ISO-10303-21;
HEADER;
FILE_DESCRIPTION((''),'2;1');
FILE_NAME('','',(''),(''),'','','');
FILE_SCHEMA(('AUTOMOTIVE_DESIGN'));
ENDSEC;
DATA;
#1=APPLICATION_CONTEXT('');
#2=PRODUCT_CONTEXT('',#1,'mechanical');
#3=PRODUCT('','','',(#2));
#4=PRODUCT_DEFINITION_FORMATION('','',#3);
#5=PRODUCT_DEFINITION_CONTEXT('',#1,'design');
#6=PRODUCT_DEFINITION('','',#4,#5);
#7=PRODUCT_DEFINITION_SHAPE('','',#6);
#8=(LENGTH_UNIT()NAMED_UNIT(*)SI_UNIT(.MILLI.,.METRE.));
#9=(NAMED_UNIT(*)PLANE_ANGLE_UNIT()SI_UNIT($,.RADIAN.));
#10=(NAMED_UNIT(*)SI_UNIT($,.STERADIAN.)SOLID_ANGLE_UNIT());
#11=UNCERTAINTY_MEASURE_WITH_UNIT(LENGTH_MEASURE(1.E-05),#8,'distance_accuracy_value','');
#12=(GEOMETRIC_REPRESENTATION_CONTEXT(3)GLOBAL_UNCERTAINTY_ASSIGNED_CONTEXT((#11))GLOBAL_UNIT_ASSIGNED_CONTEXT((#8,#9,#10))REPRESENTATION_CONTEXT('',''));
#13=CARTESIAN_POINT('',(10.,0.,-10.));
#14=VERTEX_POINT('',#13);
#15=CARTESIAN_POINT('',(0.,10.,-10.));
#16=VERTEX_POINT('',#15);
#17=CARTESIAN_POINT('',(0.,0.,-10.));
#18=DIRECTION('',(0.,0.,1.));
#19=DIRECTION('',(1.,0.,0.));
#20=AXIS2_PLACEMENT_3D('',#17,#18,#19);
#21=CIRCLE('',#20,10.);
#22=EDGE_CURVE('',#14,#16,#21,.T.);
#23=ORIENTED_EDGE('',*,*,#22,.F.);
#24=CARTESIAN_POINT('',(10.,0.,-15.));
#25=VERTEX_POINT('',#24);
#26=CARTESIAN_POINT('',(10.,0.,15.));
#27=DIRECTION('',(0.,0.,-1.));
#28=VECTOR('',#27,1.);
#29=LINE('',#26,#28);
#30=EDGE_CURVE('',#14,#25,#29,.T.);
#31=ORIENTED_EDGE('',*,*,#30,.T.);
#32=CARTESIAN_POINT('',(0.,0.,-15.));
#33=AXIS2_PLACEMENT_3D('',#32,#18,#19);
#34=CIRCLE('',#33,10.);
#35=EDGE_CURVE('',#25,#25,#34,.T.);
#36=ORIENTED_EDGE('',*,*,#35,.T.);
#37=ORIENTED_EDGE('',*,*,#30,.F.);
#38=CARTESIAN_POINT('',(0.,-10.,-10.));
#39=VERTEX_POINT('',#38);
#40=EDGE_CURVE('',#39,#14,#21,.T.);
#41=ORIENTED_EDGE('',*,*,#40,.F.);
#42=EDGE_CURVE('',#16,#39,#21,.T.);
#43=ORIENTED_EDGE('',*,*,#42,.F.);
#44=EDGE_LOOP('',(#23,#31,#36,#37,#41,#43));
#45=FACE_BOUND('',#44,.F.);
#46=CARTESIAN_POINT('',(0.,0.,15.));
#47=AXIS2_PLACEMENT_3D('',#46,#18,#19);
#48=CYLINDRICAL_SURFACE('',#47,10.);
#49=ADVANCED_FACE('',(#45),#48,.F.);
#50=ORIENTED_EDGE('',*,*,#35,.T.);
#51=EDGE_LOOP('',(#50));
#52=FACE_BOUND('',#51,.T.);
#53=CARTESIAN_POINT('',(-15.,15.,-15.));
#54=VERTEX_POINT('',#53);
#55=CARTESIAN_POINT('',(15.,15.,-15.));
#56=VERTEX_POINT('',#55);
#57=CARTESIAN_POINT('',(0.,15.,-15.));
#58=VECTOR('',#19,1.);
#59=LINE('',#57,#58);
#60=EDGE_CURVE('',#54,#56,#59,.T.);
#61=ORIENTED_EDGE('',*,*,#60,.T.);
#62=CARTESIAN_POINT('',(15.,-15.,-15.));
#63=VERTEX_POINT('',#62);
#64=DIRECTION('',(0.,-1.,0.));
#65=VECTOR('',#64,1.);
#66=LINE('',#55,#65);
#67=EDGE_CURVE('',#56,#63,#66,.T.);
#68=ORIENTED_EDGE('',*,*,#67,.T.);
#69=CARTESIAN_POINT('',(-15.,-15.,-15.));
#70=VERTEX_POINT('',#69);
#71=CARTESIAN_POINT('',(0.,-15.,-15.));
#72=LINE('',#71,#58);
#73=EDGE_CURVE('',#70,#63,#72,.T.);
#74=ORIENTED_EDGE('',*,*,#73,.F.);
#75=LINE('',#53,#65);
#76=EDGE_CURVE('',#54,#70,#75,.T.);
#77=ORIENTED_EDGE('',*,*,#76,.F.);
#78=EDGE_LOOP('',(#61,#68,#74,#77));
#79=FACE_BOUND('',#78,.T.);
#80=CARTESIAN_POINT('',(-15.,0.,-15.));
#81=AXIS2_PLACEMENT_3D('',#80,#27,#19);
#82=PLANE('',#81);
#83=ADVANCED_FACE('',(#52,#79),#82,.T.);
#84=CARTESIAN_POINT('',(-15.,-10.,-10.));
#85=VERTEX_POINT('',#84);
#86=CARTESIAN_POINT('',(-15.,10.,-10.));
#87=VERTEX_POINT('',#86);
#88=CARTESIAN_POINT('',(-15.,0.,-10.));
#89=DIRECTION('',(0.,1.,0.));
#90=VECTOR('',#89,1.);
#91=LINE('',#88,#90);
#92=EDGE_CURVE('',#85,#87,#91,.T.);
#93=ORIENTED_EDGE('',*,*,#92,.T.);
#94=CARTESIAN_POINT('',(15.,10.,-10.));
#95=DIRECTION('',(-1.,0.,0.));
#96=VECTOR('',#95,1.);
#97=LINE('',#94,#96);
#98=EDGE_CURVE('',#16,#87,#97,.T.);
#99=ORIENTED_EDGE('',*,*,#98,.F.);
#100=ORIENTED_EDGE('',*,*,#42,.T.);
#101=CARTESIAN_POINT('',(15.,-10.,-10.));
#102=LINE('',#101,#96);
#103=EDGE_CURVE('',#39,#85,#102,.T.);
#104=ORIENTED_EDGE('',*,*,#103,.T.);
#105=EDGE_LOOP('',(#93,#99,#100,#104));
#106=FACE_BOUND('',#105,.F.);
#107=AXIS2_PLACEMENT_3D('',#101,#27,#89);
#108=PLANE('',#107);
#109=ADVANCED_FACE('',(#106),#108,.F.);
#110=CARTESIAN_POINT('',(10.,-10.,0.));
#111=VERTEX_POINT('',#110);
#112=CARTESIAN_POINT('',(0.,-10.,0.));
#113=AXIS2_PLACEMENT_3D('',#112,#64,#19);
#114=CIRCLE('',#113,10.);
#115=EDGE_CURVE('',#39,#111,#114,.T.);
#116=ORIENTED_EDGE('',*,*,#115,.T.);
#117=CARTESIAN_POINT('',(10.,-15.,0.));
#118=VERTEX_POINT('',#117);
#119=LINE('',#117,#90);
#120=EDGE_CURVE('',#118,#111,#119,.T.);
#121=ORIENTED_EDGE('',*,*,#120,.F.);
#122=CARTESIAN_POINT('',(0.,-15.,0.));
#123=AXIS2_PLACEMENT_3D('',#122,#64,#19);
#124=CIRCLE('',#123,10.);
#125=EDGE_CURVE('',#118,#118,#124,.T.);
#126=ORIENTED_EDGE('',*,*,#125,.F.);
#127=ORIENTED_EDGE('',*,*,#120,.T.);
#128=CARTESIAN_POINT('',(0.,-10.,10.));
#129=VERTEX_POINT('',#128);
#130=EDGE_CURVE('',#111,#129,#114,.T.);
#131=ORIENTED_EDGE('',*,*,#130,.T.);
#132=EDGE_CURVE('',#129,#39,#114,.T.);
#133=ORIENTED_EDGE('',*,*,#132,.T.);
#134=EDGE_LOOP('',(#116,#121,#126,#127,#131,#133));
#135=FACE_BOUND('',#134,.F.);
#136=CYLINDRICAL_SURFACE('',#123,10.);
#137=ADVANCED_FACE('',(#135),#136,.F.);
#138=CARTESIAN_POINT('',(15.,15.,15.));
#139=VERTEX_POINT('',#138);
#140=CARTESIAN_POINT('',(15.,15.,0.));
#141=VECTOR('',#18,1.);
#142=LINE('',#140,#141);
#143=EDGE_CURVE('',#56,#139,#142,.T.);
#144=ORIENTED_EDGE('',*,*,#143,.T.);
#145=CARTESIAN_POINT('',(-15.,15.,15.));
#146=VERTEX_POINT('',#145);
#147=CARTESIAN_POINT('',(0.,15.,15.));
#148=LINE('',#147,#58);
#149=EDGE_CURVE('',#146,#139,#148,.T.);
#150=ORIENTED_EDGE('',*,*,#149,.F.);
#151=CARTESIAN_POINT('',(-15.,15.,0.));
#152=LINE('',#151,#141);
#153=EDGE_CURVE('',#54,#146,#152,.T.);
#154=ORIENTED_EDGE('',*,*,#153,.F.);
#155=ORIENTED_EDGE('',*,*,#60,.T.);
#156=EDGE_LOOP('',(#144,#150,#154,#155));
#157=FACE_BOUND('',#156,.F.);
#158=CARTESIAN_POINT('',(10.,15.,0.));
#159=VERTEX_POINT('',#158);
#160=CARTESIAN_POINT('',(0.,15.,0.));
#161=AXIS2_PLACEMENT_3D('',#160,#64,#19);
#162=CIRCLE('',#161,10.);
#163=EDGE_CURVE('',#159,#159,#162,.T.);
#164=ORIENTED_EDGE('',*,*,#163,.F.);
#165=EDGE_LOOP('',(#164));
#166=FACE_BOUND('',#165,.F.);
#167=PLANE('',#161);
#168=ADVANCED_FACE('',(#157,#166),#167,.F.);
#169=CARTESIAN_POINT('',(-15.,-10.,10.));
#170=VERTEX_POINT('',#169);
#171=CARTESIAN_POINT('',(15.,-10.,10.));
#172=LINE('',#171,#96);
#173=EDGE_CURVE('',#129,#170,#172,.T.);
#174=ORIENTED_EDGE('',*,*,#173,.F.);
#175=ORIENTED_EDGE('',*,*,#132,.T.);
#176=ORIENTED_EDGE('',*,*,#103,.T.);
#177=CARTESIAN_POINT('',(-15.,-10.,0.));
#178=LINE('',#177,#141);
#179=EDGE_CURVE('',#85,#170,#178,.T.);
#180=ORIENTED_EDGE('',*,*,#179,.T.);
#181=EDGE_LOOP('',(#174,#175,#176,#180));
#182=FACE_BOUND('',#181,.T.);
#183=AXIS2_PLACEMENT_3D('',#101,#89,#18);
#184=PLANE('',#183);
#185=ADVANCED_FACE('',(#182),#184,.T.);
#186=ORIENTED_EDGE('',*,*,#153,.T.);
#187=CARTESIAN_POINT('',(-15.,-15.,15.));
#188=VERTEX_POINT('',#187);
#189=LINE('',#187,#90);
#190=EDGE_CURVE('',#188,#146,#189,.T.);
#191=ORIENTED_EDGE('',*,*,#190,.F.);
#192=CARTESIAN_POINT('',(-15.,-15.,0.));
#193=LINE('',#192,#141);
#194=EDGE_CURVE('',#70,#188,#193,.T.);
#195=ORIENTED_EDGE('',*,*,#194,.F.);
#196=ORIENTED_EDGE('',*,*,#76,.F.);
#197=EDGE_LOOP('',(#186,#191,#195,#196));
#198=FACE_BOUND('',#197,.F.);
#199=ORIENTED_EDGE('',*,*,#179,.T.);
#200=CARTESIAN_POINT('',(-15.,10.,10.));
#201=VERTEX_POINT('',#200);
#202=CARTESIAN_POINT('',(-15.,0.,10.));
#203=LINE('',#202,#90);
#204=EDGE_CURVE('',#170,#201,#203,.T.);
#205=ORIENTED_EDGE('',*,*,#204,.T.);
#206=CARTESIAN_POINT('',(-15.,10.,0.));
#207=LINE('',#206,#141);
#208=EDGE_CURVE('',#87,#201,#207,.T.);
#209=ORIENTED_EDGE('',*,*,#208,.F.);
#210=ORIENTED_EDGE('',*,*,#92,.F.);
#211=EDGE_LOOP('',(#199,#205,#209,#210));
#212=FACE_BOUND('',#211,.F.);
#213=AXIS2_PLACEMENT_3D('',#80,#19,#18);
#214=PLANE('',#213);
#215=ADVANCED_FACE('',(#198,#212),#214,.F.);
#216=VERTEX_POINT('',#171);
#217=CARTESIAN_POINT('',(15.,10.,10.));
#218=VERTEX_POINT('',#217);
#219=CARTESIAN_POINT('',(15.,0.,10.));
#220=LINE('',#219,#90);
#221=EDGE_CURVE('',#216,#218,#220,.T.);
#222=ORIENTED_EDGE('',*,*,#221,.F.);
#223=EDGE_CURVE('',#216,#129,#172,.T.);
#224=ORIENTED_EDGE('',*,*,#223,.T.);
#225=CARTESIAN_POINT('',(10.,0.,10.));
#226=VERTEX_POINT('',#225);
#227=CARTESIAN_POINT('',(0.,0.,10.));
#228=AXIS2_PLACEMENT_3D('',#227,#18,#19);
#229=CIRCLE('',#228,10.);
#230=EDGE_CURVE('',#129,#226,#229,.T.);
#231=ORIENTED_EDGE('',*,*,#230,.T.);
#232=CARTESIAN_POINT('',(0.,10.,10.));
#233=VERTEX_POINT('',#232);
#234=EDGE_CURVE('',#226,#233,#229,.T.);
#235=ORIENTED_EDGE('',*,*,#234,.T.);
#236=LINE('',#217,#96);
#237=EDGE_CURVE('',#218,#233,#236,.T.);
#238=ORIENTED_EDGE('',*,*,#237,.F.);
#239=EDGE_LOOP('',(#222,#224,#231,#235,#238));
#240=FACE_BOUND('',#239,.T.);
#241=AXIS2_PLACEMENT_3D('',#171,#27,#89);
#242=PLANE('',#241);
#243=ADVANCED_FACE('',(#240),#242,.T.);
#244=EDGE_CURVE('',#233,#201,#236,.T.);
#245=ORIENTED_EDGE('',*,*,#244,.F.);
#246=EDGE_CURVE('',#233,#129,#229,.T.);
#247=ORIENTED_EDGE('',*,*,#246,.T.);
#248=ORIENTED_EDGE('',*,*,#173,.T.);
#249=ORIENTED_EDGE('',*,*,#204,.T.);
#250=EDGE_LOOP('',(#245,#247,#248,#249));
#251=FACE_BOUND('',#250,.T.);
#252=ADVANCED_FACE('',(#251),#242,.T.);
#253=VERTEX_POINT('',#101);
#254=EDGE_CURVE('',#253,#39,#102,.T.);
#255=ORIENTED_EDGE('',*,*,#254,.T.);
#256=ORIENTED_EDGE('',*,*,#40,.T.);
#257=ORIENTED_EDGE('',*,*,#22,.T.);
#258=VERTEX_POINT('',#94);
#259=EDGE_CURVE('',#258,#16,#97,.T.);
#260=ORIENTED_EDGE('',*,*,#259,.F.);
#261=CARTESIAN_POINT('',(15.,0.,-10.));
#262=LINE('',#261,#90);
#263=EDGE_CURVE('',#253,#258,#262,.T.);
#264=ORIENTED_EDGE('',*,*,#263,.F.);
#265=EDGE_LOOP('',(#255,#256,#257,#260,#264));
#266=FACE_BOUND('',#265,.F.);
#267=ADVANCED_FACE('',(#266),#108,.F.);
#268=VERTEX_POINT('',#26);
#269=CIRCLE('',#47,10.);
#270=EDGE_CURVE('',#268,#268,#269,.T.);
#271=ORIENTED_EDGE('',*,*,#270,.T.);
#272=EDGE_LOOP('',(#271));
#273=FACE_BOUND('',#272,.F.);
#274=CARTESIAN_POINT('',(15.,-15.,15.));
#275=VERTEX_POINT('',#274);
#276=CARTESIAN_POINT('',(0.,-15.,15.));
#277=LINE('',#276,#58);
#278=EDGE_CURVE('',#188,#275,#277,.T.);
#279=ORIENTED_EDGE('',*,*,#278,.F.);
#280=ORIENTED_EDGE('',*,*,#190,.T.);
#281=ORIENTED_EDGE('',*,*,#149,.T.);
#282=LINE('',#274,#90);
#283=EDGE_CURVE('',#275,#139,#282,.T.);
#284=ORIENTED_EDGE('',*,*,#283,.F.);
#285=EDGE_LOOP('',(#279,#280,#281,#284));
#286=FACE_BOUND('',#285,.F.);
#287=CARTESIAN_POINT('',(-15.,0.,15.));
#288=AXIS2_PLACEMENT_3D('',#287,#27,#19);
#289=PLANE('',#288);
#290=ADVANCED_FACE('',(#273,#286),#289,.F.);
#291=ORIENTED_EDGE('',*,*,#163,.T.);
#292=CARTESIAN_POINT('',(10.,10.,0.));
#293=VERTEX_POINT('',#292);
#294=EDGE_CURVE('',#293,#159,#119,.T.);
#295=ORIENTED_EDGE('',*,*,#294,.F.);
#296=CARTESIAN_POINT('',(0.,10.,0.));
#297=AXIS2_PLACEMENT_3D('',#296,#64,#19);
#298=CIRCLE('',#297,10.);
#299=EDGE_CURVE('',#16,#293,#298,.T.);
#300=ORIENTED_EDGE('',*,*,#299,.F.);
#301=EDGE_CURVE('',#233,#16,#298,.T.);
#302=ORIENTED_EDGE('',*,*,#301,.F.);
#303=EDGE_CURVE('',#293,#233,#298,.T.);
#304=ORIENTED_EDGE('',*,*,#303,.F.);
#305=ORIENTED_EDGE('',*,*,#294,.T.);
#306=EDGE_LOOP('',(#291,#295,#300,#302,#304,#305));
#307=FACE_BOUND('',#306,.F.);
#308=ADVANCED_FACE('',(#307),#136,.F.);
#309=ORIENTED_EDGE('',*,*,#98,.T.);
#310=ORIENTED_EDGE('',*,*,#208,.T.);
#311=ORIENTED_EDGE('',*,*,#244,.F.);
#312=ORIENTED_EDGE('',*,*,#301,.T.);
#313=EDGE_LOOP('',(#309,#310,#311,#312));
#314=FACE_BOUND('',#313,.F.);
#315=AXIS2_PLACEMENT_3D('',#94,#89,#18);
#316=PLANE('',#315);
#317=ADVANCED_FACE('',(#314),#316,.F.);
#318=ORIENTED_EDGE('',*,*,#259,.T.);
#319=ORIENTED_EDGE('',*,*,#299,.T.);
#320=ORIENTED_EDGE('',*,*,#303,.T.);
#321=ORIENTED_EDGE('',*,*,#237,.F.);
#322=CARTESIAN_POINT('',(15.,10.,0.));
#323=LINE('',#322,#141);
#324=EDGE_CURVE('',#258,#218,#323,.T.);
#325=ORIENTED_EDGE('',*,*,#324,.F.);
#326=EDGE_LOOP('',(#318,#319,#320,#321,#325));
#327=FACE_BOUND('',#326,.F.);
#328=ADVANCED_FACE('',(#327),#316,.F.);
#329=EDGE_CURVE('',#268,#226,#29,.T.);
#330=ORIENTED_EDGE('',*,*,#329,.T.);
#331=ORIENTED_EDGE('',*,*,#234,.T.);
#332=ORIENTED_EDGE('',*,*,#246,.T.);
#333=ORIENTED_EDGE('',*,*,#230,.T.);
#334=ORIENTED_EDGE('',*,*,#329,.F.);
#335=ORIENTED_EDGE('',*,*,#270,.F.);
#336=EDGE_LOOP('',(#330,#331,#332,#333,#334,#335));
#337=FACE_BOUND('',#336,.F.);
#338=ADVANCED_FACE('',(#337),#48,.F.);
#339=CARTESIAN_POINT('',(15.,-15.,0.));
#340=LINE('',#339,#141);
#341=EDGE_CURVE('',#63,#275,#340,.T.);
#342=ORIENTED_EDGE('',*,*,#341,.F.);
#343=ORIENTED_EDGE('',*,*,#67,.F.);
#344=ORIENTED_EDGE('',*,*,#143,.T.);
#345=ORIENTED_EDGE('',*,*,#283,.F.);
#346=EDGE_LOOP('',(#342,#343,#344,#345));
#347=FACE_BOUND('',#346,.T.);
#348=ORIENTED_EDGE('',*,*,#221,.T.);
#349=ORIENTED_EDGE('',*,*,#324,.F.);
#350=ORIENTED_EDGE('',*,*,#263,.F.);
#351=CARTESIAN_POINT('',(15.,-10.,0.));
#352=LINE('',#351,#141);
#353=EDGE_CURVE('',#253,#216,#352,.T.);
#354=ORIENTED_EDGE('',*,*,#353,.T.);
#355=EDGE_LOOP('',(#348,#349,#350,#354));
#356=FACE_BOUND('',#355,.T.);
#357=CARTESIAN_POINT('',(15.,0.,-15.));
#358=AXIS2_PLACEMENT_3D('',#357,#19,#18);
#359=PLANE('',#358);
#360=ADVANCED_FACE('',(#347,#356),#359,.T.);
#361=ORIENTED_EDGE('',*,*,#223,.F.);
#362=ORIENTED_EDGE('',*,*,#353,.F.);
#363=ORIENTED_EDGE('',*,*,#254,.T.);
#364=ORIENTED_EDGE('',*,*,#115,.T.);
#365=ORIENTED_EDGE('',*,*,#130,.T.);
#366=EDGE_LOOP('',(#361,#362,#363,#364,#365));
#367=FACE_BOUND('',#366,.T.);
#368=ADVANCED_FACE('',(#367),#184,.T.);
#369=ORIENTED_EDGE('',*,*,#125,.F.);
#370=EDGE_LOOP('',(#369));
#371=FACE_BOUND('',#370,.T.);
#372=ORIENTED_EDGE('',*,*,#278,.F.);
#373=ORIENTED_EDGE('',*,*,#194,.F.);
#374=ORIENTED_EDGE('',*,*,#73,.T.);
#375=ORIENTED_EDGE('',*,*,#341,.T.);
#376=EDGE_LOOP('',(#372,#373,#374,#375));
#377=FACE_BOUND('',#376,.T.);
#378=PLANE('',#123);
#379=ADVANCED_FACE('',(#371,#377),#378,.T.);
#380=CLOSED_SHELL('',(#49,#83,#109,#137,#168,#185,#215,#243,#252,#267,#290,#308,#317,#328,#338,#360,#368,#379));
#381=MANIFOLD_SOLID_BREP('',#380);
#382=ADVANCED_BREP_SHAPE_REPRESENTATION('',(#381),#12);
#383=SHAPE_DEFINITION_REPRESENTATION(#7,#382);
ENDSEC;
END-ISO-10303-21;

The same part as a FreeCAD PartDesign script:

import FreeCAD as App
import Part
import Sketcher
Q = App.Units.Quantity


def add_polygon(sketch, points):
    """Adds a closed chain of lines whose ends are joined by coincident constraints."""
    first, n = sketch.GeometryCount, len(points)
    for a, b in zip(points, points[1:] + points[:1]):
        sketch.addGeometry(Part.LineSegment(App.Vector(*a, 0), App.Vector(*b, 0)), False)
    for i in range(n):
        sketch.addConstraint(Sketcher.Constraint("Coincident", first + i, 2, first + (i + 1) % n, 1))

doc = App.newDocument("Part")
body = doc.addObject("PartDesign::Body", "Body")

sketch1 = body.newObject("Sketcher::SketchObject", "Sketch")
sketch1.AttachmentSupport = (doc.getObject("XZ_Plane"), [""])
sketch1.MapMode = "FlatFace"
add_polygon(sketch1, [(-15, 15), (-15, -15), (15, -15), (15, 15)])
sketch1.addConstraint(Sketcher.Constraint("Vertical", 0))
sketch1.addConstraint(Sketcher.Constraint("Horizontal", 1))
sketch1.addConstraint(Sketcher.Constraint("Vertical", 2))
sketch1.addConstraint(Sketcher.Constraint("Horizontal", 3))
sketch1.addConstraint(Sketcher.Constraint("Symmetric", 0, 2, 2, 2, -1, 1))
sketch1.addConstraint(Sketcher.Constraint("Equal", 3, 0))
sketch1.addConstraint(Sketcher.Constraint("DistanceX", 1, 1, 1, 2, Q("30 mm")))
pad1 = body.newObject("PartDesign::Pad", "Pad")
pad1.Profile = sketch1
pad1.Length = 30
pad1.Midplane = True

sketch2 = body.newObject("Sketcher::SketchObject", "Sketch001")
sketch2.AttachmentSupport = (doc.getObject("XY_Plane"), [""])
sketch2.MapMode = "FlatFace"
sketch2.AttachmentOffset = App.Placement(App.Vector(0, 0, 15), App.Rotation())
sketch2.addGeometry(Part.Circle(App.Vector(0, 0, 0), App.Vector(0, 0, 1), 10), False)
sketch2.addConstraint(Sketcher.Constraint("Coincident", 0, 3, -1, 1))
sketch2.addConstraint(Sketcher.Constraint("Diameter", 0, Q("20 mm")))
pocket1 = body.newObject("PartDesign::Pocket", "Pocket")
pocket1.Profile = sketch2
pocket1.Length = 30

sketch3 = body.newObject("Sketcher::SketchObject", "Sketch002")
sketch3.AttachmentSupport = (doc.getObject("XZ_Plane"), [""])
sketch3.MapMode = "FlatFace"
sketch3.AttachmentOffset = App.Placement(App.Vector(0, 0, 15), App.Rotation())
sketch3.addGeometry(Part.Circle(App.Vector(0, 0, 0), App.Vector(0, 0, 1), 10), False)
sketch3.addConstraint(Sketcher.Constraint("Coincident", 0, 3, -1, 1))
sketch3.addConstraint(Sketcher.Constraint("Diameter", 0, Q("20 mm")))
pocket2 = body.newObject("PartDesign::Pocket", "Pocket001")
pocket2.Profile = sketch3
pocket2.Length = 30

sketch4 = body.newObject("Sketcher::SketchObject", "Sketch003")
sketch4.AttachmentSupport = (doc.getObject("YZ_Plane"), [""])
sketch4.MapMode = "FlatFace"
sketch4.AttachmentOffset = App.Placement(App.Vector(0, 0, 15), App.Rotation())
add_polygon(sketch4, [(-10, 10), (-10, -10), (10, -10), (10, 10)])
sketch4.addConstraint(Sketcher.Constraint("Vertical", 0))
sketch4.addConstraint(Sketcher.Constraint("Horizontal", 1))
sketch4.addConstraint(Sketcher.Constraint("Vertical", 2))
sketch4.addConstraint(Sketcher.Constraint("Horizontal", 3))
sketch4.addConstraint(Sketcher.Constraint("Symmetric", 0, 2, 2, 2, -1, 1))
sketch4.addConstraint(Sketcher.Constraint("Equal", 3, 0))
sketch4.addConstraint(Sketcher.Constraint("DistanceX", 1, 1, 1, 2, Q("20 mm")))
pocket3 = body.newObject("PartDesign::Pocket", "Pocket002")
pocket3.Profile = sketch4
pocket3.Length = 30

doc.recompute()
